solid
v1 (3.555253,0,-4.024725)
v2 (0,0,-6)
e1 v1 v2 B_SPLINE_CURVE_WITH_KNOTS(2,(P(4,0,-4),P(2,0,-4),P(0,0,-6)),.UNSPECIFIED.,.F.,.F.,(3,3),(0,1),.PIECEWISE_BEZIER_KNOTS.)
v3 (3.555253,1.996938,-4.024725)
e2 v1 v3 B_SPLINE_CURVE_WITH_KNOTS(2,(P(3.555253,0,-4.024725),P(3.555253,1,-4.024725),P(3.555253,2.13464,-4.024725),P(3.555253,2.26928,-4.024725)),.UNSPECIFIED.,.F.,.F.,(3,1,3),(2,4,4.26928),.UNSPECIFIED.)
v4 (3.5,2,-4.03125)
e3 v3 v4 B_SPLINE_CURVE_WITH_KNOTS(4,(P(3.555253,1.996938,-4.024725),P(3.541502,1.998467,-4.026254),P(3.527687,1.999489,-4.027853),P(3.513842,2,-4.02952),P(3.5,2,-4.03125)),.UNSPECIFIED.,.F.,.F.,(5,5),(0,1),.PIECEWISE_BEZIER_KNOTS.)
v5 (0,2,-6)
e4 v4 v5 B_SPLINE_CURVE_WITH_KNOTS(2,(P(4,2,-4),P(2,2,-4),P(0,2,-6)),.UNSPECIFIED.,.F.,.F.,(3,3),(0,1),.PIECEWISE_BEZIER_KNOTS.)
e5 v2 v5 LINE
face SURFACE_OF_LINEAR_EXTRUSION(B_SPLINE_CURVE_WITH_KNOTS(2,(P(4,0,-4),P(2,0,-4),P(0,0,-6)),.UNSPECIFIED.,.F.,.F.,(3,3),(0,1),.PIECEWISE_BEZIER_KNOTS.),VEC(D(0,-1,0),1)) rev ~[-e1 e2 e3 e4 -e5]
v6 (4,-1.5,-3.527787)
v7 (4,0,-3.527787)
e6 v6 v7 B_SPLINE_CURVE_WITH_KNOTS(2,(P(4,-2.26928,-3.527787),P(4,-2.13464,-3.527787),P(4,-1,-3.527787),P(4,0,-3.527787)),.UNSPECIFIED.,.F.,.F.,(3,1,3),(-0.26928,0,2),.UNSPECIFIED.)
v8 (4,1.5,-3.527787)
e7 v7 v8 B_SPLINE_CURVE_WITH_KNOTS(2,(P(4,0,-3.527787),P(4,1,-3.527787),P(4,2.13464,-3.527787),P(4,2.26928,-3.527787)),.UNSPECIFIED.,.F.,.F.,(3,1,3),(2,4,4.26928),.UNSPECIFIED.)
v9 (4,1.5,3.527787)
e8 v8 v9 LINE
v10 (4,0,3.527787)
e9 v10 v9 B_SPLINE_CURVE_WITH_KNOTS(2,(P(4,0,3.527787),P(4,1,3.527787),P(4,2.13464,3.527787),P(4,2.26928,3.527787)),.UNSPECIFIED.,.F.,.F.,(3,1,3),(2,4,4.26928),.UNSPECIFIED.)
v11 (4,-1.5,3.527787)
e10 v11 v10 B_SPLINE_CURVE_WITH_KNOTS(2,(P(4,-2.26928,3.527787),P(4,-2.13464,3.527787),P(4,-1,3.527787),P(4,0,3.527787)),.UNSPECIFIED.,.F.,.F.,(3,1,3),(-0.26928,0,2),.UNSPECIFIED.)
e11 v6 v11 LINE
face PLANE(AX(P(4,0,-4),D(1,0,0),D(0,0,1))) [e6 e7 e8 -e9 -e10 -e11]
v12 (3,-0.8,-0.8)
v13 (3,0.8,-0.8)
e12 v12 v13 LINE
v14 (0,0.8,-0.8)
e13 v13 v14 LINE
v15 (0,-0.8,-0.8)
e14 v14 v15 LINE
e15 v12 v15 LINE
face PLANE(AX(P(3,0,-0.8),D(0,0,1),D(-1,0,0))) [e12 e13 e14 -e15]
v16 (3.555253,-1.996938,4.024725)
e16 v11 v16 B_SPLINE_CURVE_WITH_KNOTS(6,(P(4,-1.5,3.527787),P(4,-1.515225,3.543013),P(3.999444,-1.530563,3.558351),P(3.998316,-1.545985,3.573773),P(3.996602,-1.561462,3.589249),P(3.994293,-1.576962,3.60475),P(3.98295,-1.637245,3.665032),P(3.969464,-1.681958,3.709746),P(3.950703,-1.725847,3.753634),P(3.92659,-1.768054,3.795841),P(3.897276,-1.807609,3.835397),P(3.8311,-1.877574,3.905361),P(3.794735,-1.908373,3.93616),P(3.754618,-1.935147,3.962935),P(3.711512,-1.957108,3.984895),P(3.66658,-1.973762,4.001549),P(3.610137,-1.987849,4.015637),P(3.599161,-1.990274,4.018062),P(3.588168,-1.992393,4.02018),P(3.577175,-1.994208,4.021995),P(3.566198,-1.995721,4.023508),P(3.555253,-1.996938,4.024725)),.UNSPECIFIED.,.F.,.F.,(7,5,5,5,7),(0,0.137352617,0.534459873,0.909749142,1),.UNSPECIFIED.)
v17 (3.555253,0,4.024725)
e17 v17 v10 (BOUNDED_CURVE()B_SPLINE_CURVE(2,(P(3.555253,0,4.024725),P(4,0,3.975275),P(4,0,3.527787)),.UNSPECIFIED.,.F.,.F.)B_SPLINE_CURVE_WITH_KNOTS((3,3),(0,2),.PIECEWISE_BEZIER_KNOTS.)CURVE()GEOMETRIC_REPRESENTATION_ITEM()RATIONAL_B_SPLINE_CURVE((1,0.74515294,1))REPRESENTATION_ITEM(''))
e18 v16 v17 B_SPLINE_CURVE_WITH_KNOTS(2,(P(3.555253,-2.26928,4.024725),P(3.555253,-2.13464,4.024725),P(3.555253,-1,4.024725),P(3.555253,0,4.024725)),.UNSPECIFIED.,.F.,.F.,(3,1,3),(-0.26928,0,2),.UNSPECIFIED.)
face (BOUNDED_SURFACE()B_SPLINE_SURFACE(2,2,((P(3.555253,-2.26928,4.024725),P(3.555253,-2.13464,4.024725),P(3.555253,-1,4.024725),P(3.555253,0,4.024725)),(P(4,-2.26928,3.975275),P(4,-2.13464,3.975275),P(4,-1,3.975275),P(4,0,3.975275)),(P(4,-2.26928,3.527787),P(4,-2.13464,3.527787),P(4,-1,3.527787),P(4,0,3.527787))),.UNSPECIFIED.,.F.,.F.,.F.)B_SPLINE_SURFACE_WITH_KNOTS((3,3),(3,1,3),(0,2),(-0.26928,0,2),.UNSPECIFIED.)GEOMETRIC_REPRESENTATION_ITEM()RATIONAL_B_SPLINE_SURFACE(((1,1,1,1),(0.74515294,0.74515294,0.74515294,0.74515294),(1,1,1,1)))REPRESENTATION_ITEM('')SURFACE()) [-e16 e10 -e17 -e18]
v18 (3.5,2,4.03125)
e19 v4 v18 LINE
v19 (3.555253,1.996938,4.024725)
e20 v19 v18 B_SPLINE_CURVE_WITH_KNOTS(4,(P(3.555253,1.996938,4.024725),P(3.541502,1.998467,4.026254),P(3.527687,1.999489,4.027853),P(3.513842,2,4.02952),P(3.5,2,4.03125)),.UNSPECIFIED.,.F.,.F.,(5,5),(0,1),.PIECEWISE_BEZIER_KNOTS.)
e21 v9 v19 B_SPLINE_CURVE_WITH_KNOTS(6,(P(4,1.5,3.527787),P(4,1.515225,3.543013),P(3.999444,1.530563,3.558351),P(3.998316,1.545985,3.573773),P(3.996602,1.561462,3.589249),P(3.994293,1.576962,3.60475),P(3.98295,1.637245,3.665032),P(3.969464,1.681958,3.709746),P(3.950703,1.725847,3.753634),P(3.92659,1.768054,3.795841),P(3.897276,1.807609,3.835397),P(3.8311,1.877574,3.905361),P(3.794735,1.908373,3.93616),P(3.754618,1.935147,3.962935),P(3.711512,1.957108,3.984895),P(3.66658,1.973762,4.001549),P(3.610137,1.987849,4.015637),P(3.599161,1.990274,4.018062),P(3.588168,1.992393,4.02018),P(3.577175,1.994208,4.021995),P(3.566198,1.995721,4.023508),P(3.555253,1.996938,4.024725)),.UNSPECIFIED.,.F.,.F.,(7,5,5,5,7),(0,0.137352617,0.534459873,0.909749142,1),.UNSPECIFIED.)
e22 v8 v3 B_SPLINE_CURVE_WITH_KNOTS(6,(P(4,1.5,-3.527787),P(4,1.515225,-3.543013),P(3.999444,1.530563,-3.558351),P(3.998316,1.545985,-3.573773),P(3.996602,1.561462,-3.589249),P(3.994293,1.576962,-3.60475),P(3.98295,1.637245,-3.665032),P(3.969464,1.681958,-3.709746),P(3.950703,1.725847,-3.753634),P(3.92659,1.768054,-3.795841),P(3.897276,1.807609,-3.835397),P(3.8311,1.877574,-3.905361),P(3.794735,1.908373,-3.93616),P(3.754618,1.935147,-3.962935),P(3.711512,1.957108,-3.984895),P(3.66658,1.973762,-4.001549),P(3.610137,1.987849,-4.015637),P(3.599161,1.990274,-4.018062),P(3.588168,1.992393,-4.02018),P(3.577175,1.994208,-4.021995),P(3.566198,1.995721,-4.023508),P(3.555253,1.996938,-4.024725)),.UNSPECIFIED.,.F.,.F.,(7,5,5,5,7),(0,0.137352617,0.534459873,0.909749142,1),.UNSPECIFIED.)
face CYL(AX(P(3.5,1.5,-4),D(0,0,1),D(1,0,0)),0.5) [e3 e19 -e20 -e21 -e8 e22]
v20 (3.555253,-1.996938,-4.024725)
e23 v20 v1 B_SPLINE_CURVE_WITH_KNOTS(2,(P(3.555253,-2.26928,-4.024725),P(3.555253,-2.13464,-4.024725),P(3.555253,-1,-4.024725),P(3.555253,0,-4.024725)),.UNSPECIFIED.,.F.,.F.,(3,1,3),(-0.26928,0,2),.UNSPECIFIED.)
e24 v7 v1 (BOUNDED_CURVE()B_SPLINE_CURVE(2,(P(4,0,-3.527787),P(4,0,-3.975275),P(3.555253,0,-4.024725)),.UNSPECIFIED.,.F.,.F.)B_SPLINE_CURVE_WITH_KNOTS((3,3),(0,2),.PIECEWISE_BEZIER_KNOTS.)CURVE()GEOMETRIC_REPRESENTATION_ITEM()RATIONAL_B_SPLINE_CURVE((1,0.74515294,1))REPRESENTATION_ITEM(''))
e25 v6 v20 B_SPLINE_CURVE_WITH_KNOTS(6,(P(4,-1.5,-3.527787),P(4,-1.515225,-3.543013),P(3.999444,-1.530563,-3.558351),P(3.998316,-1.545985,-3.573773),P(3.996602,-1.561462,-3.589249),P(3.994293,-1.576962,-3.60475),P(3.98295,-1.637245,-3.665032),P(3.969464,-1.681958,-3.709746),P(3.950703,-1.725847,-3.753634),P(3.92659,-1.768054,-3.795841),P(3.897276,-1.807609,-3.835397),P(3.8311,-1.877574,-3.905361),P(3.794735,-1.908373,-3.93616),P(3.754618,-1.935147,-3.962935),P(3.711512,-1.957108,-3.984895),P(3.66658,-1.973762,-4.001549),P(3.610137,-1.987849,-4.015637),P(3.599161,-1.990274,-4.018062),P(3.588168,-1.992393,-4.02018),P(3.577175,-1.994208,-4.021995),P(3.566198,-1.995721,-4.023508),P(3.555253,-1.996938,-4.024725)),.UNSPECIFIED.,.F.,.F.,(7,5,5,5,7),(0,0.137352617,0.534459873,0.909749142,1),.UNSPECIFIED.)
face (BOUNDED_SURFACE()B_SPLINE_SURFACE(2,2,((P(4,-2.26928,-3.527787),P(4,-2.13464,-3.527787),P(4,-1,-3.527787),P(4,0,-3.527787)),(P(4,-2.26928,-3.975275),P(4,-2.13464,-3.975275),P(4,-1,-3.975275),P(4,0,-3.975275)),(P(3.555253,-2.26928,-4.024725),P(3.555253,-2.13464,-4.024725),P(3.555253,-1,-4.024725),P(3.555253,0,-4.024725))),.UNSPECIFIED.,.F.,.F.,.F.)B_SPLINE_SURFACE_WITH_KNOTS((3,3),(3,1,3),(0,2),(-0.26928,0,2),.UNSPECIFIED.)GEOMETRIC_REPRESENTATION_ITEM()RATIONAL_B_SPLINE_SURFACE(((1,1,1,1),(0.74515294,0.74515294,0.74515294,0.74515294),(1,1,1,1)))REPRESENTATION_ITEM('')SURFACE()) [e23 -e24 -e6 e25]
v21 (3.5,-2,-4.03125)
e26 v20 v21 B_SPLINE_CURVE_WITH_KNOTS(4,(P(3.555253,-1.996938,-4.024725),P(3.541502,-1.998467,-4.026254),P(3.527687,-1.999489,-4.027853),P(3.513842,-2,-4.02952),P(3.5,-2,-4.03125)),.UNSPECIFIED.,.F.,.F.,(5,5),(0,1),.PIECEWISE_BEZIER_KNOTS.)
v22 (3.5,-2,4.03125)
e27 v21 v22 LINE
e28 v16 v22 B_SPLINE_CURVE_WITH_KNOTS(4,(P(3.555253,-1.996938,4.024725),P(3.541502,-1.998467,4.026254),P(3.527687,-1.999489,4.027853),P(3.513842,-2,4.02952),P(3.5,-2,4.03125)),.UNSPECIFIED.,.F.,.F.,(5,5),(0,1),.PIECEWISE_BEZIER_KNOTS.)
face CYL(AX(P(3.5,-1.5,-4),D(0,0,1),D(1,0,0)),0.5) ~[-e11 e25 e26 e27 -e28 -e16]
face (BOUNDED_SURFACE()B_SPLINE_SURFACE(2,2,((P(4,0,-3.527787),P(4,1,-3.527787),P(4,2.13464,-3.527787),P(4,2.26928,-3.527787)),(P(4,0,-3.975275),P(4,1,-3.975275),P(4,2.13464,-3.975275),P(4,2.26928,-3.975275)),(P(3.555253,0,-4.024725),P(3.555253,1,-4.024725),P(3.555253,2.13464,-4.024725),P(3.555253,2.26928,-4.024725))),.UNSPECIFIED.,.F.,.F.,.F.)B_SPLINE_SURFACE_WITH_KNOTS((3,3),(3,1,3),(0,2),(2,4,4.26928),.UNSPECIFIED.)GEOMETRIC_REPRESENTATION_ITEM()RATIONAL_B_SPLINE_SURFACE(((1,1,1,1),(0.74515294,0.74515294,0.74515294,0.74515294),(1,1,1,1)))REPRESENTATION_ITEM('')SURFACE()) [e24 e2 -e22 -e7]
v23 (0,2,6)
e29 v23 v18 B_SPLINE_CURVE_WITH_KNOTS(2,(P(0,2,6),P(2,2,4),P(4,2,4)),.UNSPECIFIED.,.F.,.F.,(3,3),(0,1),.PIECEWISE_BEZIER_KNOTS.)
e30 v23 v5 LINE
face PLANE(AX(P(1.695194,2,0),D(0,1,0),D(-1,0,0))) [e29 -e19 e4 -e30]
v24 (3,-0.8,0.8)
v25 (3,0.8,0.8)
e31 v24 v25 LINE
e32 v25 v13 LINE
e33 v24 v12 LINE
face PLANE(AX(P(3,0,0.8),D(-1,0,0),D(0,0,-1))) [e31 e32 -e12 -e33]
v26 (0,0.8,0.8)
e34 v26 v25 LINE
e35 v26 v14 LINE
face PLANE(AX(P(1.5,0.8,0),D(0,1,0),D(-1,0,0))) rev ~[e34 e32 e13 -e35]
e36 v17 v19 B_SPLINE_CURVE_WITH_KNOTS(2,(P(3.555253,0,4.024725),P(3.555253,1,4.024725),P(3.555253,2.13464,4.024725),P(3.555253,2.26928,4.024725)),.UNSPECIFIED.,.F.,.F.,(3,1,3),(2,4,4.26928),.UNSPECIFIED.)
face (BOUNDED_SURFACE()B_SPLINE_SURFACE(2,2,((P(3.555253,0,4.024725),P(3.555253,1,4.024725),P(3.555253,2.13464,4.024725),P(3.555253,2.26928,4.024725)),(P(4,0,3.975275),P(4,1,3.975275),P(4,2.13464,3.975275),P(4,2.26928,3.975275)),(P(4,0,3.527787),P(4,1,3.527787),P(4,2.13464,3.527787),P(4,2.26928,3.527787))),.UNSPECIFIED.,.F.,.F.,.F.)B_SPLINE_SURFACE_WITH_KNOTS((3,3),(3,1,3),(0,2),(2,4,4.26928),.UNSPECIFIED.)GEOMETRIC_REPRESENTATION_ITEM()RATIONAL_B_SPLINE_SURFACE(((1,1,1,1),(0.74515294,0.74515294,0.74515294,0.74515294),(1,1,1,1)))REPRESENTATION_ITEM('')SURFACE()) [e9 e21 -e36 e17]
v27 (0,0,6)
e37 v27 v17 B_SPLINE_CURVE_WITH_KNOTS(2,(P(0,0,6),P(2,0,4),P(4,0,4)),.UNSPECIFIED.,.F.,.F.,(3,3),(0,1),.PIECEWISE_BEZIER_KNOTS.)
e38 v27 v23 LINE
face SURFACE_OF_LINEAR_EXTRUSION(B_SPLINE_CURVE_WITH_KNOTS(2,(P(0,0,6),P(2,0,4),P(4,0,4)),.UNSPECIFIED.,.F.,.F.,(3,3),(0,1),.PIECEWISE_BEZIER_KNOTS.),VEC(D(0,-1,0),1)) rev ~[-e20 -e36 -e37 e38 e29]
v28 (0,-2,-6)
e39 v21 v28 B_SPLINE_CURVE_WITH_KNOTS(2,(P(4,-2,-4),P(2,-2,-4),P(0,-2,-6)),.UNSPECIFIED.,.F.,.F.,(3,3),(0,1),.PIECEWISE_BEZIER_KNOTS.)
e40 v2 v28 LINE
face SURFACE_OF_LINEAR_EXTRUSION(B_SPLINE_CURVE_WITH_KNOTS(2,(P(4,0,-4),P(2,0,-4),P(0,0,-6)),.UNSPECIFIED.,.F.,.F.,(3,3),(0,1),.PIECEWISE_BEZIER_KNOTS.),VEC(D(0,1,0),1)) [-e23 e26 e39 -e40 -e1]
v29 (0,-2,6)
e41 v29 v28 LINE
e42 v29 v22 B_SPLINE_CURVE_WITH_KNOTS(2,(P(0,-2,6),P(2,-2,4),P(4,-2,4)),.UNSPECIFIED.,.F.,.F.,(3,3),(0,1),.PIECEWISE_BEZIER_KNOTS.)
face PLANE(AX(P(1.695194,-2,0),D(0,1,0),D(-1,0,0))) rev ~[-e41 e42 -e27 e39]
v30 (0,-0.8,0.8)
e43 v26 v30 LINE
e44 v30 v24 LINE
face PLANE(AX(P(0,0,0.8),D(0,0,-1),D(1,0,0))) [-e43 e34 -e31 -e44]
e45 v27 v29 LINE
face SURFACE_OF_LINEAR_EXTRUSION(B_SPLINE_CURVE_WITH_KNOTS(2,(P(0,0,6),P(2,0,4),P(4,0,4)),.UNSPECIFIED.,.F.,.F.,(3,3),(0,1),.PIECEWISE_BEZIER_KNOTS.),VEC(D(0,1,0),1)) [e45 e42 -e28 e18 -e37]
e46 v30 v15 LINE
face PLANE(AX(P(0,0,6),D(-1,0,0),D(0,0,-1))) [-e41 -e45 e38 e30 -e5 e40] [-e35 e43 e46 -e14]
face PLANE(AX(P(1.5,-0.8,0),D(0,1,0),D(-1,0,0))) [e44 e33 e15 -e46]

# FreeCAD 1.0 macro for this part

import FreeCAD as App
import Part
import Sketcher
from FreeCAD import Vector


def edges_at(feature, points):
    """Names of the edges that pass closest to the given points."""
    edges = feature.Shape.Edges
    near = lambda p: min(range(len(edges)), key=lambda i: edges[i].distToShape(Part.Vertex(*p))[0])
    return sorted({f"Edge{near(p) + 1}" for p in points})

doc = App.newDocument("Part")
body = doc.addObject("PartDesign::Body", "Body")

# Sketch on XZ plane
sketch1 = body.newObject("Sketcher::SketchObject", "Sketch")
sketch1.AttachmentSupport = (doc.getObject("XZ_Plane"), [""])
sketch1.MapMode = "FlatFace"
sketch1.addGeometry([
    Part.LineSegment(Vector(3, 0.8, 0), Vector(0, 0.8, 0)),
    Part.LineSegment(Vector(0, 0.8, 0), Vector(0, -0.8, 0)),
    Part.LineSegment(Vector(0, -0.8, 0), Vector(3, -0.8, 0)),
    Part.LineSegment(Vector(3, -0.8, 0), Vector(3, 0.8, 0)),
], False)
sketch1.addConstraint([
    Sketcher.Constraint("Coincident", 0, 2, 1, 1),
    Sketcher.Constraint("Coincident", 1, 2, 2, 1),
    Sketcher.Constraint("Coincident", 2, 2, 3, 1),
    Sketcher.Constraint("Coincident", 3, 2, 0, 1),
    Sketcher.Constraint("Horizontal", 0),
    Sketcher.Constraint("Vertical", 1),
    Sketcher.Constraint("Horizontal", 2),
    Sketcher.Constraint("Vertical", 3),
    Sketcher.Constraint("Symmetric", 0, 2, 1, 2, -1, 1),
    Sketcher.Constraint("DistanceX", 0, 2, 0, 1, 3.0),
    Sketcher.Constraint("DistanceY", 1, 2, 1, 1, 1.6),
])
pad1 = body.newObject("PartDesign::Pad", "Pad")
pad1.Profile = sketch1
pad1.Length = 1.6
pad1.Midplane = True
body2 = doc.addObject("PartDesign::Body", "Body001")

# Sketch on XZ plane
sketch2 = body2.newObject("Sketcher::SketchObject", "Sketch001")
sketch2.AttachmentSupport = (doc.getObject("XZ_Plane001"), [""])
sketch2.MapMode = "FlatFace"
sketch2.addGeometry([
    Part.BSplineCurve([Vector(0, 6, 0), Vector(2, 4, 0), Vector(4, 4, 0)], [3, 3], [0, 1], False, 2, [1, 1, 1], False),
    Part.LineSegment(Vector(0, 6, 0), Vector(0, -6, 0)),
    Part.BSplineCurve([Vector(4, -4, 0), Vector(2, -4, 0), Vector(0, -6, 0)], [3, 3], [0, 1], False, 2, [1, 1, 1], False),
    Part.LineSegment(Vector(4, -4, 0), Vector(4, 4, 0)),
], False)
sketch2.addConstraint([
    Sketcher.Constraint("Block", 0),
    Sketcher.Constraint("Block", 2),
    Sketcher.Constraint("Coincident", 0, 1, 1, 1),
    Sketcher.Constraint("Coincident", 1, 2, 2, 2),
    Sketcher.Constraint("Coincident", 2, 1, 3, 1),
    Sketcher.Constraint("Coincident", 3, 2, 0, 2),
])
pad2 = body2.newObject("PartDesign::Pad", "Pad001")
pad2.Profile = sketch2
pad2.Length = 4
pad2.Midplane = True
doc.recompute()

fillet = body2.newObject("PartDesign::Fillet", "Fillet")
fillet.Base = (pad2, edges_at(pad2, [
    (4, 1, 4),
    (4, 1, -4),
    (4, 2, 0),
    (4, -2, 0),
    (4, 2, 0),
    (4, -2, 0),
]))
fillet.Radius = 0.5
doc.recompute()

boolean = body2.newObject("PartDesign::Boolean", "Boolean")
boolean.Type = "Cut"
boolean.addObjects([body])

doc.recompute()
